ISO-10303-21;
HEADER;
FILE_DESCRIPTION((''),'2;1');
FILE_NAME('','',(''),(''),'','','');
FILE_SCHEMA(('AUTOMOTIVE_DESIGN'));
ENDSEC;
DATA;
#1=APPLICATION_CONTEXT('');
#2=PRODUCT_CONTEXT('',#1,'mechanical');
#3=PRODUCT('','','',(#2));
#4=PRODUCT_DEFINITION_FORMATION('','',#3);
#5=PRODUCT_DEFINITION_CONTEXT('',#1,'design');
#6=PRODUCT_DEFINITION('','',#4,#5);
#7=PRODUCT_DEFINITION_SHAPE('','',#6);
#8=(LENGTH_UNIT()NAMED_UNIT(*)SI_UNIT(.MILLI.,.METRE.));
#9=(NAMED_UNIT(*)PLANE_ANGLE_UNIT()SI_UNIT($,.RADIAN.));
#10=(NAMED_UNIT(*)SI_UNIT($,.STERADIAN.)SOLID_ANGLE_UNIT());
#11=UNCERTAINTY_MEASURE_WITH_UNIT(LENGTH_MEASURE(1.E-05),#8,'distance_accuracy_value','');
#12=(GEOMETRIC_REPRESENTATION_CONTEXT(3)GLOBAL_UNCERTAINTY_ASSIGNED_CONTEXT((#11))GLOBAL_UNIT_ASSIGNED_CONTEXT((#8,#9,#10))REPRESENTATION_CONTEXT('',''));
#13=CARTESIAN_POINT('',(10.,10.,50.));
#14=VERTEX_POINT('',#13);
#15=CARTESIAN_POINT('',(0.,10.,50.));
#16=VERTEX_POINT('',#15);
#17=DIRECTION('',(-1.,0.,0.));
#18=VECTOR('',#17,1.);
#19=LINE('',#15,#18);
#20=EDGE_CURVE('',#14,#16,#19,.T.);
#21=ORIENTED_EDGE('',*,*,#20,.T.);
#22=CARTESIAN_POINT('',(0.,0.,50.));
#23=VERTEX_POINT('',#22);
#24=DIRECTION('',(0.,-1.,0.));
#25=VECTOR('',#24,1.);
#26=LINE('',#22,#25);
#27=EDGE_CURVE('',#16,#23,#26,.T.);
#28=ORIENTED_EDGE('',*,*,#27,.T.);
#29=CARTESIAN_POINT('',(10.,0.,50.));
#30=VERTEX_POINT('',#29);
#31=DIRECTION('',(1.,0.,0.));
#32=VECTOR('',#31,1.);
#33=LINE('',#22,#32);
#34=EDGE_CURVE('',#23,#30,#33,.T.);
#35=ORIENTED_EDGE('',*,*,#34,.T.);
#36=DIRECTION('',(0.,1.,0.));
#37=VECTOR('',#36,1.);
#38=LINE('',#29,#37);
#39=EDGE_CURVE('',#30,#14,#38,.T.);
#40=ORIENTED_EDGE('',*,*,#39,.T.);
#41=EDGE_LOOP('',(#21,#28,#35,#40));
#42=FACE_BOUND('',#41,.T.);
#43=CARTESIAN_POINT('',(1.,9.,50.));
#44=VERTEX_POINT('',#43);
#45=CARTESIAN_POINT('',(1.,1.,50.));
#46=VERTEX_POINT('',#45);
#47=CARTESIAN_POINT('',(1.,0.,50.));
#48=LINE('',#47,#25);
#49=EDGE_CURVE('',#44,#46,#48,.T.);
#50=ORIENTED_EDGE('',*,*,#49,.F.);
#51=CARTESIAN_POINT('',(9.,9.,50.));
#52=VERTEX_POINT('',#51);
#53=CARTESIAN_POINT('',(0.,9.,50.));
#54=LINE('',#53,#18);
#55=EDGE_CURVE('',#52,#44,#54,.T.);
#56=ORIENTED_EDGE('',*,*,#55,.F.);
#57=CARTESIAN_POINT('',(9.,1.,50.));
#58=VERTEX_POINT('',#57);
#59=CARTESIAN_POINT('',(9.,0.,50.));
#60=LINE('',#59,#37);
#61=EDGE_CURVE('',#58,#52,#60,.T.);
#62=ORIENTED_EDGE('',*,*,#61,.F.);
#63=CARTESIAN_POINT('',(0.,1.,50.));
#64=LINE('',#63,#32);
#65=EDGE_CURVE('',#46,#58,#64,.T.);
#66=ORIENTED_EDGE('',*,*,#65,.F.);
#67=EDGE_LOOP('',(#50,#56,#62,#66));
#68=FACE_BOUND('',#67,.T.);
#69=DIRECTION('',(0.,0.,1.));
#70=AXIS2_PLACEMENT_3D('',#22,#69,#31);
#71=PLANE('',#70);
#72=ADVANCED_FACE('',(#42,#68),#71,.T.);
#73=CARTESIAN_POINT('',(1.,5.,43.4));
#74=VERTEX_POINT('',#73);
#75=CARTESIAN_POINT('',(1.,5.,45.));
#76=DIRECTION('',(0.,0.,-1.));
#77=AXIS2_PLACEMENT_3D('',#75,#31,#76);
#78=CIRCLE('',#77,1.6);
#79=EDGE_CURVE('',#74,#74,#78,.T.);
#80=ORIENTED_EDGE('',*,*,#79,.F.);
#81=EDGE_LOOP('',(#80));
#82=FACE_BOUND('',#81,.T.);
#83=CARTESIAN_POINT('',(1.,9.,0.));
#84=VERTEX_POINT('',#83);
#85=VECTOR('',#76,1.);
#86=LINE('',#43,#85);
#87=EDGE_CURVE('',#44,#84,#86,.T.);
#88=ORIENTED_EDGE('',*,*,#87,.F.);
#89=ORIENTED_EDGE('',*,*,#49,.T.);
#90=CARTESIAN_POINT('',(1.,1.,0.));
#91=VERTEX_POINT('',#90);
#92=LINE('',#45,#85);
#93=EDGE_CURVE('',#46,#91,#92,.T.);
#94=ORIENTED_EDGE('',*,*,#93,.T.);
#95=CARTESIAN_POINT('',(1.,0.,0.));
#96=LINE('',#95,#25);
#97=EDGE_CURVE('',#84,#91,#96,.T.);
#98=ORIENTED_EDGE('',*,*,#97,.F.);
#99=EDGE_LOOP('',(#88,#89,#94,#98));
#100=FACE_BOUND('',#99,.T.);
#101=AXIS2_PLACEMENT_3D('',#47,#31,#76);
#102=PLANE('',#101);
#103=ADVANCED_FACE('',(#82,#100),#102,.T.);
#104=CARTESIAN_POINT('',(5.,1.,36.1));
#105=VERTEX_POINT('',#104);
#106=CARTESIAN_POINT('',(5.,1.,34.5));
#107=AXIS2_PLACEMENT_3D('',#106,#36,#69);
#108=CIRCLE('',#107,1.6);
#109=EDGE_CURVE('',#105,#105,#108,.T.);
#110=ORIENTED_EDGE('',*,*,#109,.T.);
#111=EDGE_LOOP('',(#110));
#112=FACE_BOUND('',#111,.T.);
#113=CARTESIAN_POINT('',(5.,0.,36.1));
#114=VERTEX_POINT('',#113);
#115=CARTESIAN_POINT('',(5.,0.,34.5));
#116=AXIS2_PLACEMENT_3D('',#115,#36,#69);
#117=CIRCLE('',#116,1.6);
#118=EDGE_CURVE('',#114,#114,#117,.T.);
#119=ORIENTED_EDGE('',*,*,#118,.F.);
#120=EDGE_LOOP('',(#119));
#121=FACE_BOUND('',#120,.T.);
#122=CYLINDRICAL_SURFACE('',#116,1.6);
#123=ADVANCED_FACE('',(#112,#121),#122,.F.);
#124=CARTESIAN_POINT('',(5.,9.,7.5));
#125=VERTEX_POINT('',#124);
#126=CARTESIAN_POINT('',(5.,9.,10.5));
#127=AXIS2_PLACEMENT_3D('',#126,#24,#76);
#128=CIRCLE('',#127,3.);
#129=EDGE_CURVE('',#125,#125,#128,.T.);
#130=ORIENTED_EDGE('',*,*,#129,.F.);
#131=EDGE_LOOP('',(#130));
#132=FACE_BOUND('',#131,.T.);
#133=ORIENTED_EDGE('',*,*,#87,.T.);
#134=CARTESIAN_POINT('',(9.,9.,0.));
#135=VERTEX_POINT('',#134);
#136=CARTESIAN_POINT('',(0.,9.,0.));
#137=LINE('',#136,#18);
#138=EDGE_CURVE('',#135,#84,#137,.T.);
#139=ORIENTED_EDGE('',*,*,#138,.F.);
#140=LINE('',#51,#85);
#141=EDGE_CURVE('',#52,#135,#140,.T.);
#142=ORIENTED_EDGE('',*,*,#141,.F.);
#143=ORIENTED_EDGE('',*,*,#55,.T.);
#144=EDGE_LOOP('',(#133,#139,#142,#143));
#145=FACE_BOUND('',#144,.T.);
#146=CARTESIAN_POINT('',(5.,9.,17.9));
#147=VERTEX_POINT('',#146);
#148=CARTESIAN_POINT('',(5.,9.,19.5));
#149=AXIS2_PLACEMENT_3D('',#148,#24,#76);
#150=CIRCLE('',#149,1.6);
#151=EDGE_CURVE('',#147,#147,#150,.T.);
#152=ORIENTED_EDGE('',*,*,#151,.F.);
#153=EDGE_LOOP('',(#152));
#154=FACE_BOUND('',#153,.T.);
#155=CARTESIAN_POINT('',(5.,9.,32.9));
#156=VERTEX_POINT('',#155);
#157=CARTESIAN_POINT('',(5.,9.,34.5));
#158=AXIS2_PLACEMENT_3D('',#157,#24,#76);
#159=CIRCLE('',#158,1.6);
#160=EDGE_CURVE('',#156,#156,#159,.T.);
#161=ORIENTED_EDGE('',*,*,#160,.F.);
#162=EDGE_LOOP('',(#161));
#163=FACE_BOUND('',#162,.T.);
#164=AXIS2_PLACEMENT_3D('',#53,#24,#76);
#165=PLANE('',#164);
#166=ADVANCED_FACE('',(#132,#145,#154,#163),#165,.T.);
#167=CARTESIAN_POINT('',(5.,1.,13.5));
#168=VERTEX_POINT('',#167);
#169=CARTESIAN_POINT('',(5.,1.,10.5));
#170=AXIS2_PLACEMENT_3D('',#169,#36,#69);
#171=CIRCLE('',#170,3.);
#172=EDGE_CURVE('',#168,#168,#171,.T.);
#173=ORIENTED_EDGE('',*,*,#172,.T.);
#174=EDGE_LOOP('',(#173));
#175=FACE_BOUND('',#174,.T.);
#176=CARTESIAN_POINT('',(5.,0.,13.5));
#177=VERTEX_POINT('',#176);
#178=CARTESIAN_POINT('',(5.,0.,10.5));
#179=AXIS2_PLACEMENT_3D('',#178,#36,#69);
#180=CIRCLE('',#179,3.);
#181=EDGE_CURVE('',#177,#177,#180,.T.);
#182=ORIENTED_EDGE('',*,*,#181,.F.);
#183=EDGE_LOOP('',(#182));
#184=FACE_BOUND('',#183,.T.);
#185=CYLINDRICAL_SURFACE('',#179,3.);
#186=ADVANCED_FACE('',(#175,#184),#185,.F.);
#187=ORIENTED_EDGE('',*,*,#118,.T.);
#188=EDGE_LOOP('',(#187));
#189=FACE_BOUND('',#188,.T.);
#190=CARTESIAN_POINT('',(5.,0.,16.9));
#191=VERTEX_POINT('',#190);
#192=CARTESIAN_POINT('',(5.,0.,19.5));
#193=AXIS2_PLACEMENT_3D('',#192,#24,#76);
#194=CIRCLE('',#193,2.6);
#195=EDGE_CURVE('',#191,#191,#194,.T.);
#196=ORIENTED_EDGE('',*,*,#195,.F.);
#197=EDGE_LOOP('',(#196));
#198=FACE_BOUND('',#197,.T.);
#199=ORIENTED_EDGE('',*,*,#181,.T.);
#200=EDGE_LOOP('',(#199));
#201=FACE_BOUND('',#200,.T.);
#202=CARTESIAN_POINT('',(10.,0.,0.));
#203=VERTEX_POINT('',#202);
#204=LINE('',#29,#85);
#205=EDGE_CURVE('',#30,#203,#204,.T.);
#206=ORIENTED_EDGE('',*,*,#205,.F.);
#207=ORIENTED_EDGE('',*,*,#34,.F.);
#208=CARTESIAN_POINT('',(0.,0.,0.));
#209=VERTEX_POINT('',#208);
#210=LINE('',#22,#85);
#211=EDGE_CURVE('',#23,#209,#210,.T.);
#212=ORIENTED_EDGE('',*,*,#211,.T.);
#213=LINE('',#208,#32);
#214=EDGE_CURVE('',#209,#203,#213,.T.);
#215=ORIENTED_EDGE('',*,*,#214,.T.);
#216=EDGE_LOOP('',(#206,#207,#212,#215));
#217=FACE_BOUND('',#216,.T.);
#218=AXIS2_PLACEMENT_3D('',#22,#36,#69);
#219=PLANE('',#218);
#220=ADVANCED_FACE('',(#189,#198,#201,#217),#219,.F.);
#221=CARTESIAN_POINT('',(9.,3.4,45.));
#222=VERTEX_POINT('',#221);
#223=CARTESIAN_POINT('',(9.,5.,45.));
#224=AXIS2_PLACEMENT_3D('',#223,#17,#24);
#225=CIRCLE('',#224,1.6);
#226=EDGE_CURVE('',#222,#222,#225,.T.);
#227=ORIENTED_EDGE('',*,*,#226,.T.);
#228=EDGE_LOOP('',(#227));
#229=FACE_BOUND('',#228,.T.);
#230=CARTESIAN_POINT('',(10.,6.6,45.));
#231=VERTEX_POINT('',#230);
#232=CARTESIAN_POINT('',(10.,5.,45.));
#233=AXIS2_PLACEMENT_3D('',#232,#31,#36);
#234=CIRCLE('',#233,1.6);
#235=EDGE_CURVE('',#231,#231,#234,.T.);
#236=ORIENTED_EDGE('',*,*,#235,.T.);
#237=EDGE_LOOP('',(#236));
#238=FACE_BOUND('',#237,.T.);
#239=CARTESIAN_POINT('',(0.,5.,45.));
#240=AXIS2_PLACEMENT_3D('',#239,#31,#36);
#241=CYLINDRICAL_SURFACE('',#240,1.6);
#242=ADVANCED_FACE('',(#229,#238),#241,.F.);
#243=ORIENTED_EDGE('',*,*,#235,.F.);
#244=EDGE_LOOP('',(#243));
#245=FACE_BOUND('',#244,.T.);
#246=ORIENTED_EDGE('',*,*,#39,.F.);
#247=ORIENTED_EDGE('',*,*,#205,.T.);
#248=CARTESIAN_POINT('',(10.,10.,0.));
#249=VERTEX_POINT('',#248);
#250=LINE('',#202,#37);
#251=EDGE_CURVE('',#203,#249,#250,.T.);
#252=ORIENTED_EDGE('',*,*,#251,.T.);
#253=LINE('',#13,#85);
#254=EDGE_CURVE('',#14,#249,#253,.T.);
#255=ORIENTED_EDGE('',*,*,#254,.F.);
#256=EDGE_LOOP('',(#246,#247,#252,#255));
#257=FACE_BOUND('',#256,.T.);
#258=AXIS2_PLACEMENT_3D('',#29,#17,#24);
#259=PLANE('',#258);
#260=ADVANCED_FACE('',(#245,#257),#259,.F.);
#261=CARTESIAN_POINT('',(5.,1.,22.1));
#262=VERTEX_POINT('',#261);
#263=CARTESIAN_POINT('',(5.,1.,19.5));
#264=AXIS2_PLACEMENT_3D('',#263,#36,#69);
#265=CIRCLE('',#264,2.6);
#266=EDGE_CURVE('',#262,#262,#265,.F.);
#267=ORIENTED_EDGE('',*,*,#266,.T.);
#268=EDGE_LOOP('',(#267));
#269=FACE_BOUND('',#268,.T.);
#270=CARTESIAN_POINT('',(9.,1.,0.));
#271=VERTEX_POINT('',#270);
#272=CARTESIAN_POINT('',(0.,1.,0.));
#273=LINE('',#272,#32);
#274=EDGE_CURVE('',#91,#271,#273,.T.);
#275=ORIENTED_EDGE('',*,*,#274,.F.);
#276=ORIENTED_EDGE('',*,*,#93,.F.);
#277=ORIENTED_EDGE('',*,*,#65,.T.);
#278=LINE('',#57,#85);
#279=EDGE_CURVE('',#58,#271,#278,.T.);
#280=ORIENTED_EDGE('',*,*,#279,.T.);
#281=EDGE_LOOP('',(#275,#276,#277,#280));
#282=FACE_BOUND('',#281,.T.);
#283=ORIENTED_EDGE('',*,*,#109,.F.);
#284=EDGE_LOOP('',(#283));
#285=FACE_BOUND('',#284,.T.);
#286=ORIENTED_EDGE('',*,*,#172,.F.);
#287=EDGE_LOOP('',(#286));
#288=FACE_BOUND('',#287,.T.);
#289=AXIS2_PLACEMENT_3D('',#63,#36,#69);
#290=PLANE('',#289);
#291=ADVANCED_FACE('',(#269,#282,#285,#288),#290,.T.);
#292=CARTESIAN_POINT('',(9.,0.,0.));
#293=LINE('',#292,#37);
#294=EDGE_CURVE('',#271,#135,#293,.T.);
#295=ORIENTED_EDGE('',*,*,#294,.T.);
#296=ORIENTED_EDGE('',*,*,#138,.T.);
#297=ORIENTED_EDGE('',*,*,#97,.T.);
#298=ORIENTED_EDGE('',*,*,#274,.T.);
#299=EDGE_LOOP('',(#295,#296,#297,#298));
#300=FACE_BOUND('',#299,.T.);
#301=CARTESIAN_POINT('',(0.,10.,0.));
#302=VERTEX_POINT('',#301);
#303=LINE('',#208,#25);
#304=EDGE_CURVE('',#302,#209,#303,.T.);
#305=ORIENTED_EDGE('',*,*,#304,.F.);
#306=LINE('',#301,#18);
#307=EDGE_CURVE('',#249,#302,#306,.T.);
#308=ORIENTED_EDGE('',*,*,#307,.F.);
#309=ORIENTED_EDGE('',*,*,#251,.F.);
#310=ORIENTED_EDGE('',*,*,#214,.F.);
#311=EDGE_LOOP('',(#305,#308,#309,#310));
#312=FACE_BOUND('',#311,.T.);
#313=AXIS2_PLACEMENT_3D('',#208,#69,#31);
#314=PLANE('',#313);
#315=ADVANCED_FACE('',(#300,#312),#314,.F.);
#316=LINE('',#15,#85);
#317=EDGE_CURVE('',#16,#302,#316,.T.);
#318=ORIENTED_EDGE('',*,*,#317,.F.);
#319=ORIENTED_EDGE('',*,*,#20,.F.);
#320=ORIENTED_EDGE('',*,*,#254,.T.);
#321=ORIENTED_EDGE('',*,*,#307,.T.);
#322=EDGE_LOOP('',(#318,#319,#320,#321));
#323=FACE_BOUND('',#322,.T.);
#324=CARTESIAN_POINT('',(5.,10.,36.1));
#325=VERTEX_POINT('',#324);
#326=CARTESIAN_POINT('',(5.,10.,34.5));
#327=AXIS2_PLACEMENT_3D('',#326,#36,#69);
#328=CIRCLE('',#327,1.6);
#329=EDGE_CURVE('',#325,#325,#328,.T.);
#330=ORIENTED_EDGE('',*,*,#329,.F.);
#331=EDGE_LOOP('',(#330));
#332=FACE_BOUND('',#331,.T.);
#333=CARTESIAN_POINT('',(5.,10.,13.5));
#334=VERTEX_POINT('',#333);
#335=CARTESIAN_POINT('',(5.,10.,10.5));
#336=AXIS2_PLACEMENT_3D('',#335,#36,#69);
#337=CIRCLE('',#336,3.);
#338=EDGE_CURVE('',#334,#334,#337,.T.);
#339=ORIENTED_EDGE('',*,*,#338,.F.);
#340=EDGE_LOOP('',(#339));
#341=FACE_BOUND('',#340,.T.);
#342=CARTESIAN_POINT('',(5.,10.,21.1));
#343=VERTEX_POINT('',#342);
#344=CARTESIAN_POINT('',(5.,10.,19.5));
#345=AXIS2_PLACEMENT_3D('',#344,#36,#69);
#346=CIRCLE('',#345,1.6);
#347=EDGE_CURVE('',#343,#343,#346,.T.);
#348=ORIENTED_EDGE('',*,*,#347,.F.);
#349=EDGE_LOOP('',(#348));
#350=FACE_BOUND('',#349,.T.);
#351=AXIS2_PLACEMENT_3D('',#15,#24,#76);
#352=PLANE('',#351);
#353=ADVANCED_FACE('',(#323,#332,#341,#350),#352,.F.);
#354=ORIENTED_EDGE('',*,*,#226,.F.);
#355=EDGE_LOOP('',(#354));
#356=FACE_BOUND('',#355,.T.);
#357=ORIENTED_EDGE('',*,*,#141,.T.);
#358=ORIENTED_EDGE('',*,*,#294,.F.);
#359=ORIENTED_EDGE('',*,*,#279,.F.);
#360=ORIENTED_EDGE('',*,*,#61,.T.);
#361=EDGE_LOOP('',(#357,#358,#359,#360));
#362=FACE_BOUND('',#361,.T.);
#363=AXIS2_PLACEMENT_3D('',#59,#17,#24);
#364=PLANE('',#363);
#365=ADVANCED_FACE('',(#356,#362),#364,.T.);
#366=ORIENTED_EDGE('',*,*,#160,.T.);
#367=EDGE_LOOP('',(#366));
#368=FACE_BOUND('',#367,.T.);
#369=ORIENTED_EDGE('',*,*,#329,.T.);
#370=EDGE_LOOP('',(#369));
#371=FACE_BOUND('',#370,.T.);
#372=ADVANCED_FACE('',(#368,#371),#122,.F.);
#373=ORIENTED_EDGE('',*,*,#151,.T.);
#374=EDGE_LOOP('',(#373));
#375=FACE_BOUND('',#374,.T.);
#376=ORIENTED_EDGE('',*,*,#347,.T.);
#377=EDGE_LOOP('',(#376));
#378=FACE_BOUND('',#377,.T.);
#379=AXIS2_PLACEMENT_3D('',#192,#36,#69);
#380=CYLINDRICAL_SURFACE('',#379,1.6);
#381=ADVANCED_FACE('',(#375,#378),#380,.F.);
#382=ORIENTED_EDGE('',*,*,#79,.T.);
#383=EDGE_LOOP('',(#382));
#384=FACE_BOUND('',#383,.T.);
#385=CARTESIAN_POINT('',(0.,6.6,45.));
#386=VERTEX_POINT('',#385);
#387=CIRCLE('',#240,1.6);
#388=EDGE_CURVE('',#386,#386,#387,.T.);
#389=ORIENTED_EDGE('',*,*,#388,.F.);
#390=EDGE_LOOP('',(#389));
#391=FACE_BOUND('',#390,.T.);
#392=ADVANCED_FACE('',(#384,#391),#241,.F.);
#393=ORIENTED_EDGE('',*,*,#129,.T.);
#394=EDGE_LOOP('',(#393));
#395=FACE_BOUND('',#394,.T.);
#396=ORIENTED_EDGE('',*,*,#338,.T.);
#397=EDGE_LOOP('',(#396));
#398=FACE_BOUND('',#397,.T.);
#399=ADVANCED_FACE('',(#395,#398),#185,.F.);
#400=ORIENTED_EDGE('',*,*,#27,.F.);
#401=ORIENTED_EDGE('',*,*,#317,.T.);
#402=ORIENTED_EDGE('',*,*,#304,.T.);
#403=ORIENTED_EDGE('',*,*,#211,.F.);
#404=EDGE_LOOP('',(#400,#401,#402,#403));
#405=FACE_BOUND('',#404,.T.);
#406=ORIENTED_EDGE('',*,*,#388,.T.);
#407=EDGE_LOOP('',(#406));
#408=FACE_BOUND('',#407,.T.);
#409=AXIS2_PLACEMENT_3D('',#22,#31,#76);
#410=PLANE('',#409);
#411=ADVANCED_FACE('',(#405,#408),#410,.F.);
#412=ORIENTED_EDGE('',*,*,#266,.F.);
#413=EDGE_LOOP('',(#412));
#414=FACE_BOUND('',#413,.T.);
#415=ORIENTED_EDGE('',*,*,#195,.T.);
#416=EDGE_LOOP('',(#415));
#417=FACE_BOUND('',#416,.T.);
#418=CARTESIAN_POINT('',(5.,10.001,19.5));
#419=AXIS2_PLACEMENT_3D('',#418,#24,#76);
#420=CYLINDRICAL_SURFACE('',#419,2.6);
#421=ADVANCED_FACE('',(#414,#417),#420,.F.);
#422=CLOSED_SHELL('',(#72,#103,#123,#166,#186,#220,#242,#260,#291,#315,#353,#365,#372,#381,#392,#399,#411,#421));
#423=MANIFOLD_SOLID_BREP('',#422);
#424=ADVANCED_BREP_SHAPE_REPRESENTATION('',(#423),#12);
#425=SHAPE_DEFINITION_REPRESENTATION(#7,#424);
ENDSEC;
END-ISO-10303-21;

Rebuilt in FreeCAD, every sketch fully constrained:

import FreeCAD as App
import Part
import Sketcher

doc = App.newDocument("Part")
body = doc.addObject("PartDesign::Body", "Body")

sketch1 = doc.addObject("Sketcher::SketchObject", "Sketch")
body.addObject(sketch1)
sketch1.AttachmentSupport = (doc.XY_Plane, [""])
sketch1.MapMode = "FlatFace"
sketch1.addGeometry(Part.LineSegment(App.Vector(0, 10, 0), App.Vector(0, 0, 0)), False)
sketch1.addGeometry(Part.LineSegment(App.Vector(0, 0, 0), App.Vector(10, 0, 0)), False)
sketch1.addGeometry(Part.LineSegment(App.Vector(10, 0, 0), App.Vector(10, 10, 0)), False)
sketch1.addGeometry(Part.LineSegment(App.Vector(10, 10, 0), App.Vector(0, 10, 0)), False)
sketch1.addGeometry(Part.LineSegment(App.Vector(9, 1, 0), App.Vector(1, 1, 0)), False)
sketch1.addGeometry(Part.LineSegment(App.Vector(1, 1, 0), App.Vector(1, 9, 0)), False)
sketch1.addGeometry(Part.LineSegment(App.Vector(1, 9, 0), App.Vector(9, 9, 0)), False)
sketch1.addGeometry(Part.LineSegment(App.Vector(9, 9, 0), App.Vector(9, 1, 0)), False)
sketch1.addConstraint(Sketcher.Constraint("Coincident", 0, 2, 1, 1))
sketch1.addConstraint(Sketcher.Constraint("Coincident", 1, 2, 2, 1))
sketch1.addConstraint(Sketcher.Constraint("Coincident", 2, 2, 3, 1))
sketch1.addConstraint(Sketcher.Constraint("Coincident", 3, 2, 0, 1))
sketch1.addConstraint(Sketcher.Constraint("Coincident", 4, 2, 5, 1))
sketch1.addConstraint(Sketcher.Constraint("Coincident", 5, 2, 6, 1))
sketch1.addConstraint(Sketcher.Constraint("Coincident", 6, 2, 7, 1))
sketch1.addConstraint(Sketcher.Constraint("Coincident", 7, 2, 4, 1))
sketch1.addConstraint(Sketcher.Constraint("Vertical", 0))
sketch1.addConstraint(Sketcher.Constraint("Horizontal", 1))
sketch1.addConstraint(Sketcher.Constraint("Vertical", 2))
sketch1.addConstraint(Sketcher.Constraint("Horizontal", 3))
sketch1.addConstraint(Sketcher.Constraint("Horizontal", 4))
sketch1.addConstraint(Sketcher.Constraint("Vertical", 5))
sketch1.addConstraint(Sketcher.Constraint("Horizontal", 6))
sketch1.addConstraint(Sketcher.Constraint("Vertical", 7))
sketch1.addConstraint(Sketcher.Constraint("Coincident", 0, 2, -1, 1))
sketch1.addConstraint(Sketcher.Constraint("Equal", 3, 0))
sketch1.addConstraint(Sketcher.Constraint("Equal", 6, 5))
sketch1.addConstraint(Sketcher.Constraint("DistanceX", 1, 1, 1, 2, 10.0))
sketch1.addConstraint(Sketcher.Constraint("DistanceX", 4, 2, 4, 1, 8.0))
sketch1.addConstraint(Sketcher.Constraint("DistanceX", -1, 1, 4, 2, 1.0))
sketch1.addConstraint(Sketcher.Constraint("DistanceY", -1, 1, 4, 2, 1.0))
pad1 = doc.addObject("PartDesign::Pad", "Pad")
body.addObject(pad1)
pad1.Profile = sketch1
pad1.Length = 50

sketch2 = doc.addObject("Sketcher::SketchObject", "Sketch001")
body.addObject(sketch2)
sketch2.AttachmentSupport = (doc.XZ_Plane, [""])
sketch2.MapMode = "FlatFace"
sketch2.AttachmentOffset = App.Placement(App.Vector(0, 0, -10), App.Rotation())
sketch2.addGeometry(Part.Circle(App.Vector(5, 10.5, 0), App.Vector(0, 0, 1), 3), False)
sketch2.addGeometry(Part.Circle(App.Vector(5, 19.5, 0), App.Vector(0, 0, 1), 1.6), False)
sketch2.addGeometry(Part.Circle(App.Vector(5, 34.5, 0), App.Vector(0, 0, 1), 1.6), False)
sketch2.addConstraint(Sketcher.Constraint("Equal", 1, 2))
sketch2.addConstraint(Sketcher.Constraint("Vertical", 0, 3, 1, 3))
sketch2.addConstraint(Sketcher.Constraint("Vertical", 1, 3, 2, 3))
sketch2.addConstraint(Sketcher.Constraint("Diameter", 0, 6.0))
sketch2.addConstraint(Sketcher.Constraint("Diameter", 1, 3.2))
sketch2.addConstraint(Sketcher.Constraint("DistanceX", -1, 1, 0, 3, 5.0))
sketch2.addConstraint(Sketcher.Constraint("DistanceY", 0, 3, 1, 3, 9.0))
sketch2.addConstraint(Sketcher.Constraint("DistanceY", 1, 3, 2, 3, 15.0))
sketch2.addConstraint(Sketcher.Constraint("DistanceY", -1, 1, 0, 3, 10.5))
pocket1 = doc.addObject("PartDesign::Pocket", "Pocket")
body.addObject(pocket1)
pocket1.Profile = sketch2
pocket1.Type = "ThroughAll"
pocket1.Reversed = True

sketch3 = doc.addObject("Sketcher::SketchObject", "Sketch002")
body.addObject(sketch3)
sketch3.AttachmentSupport = (doc.XZ_Plane, [""])
sketch3.MapMode = "FlatFace"
sketch3.addGeometry(Part.Circle(App.Vector(5, 19.5, 0), App.Vector(0, 0, 1), 2.6), False)
sketch3.addConstraint(Sketcher.Constraint("Diameter", 0, 5.2))
sketch3.addConstraint(Sketcher.Constraint("DistanceX", -1, 1, 0, 3, 5.0))
sketch3.addConstraint(Sketcher.Constraint("DistanceY", -1, 1, 0, 3, 19.5))
pocket2 = doc.addObject("PartDesign::Pocket", "Pocket001")
body.addObject(pocket2)
pocket2.Profile = sketch3
pocket2.Length = 1

sketch4 = doc.addObject("Sketcher::SketchObject", "Sketch003")
body.addObject(sketch4)
sketch4.AttachmentSupport = (doc.YZ_Plane, [""])
sketch4.MapMode = "FlatFace"
sketch4.AttachmentOffset = App.Placement(App.Vector(0, 0, 10), App.Rotation())
sketch4.addGeometry(Part.Circle(App.Vector(5, 45, 0), App.Vector(0, 0, 1), 1.6), False)
sketch4.addConstraint(Sketcher.Constraint("Diameter", 0, 3.2))
sketch4.addConstraint(Sketcher.Constraint("DistanceX", -1, 1, 0, 3, 5.0))
sketch4.addConstraint(Sketcher.Constraint("DistanceY", -1, 1, 0, 3, 45.0))
pocket3 = doc.addObject("PartDesign::Pocket", "Pocket002")
body.addObject(pocket3)
pocket3.Profile = sketch4
pocket3.Type = "ThroughAll"

doc.recompute()
